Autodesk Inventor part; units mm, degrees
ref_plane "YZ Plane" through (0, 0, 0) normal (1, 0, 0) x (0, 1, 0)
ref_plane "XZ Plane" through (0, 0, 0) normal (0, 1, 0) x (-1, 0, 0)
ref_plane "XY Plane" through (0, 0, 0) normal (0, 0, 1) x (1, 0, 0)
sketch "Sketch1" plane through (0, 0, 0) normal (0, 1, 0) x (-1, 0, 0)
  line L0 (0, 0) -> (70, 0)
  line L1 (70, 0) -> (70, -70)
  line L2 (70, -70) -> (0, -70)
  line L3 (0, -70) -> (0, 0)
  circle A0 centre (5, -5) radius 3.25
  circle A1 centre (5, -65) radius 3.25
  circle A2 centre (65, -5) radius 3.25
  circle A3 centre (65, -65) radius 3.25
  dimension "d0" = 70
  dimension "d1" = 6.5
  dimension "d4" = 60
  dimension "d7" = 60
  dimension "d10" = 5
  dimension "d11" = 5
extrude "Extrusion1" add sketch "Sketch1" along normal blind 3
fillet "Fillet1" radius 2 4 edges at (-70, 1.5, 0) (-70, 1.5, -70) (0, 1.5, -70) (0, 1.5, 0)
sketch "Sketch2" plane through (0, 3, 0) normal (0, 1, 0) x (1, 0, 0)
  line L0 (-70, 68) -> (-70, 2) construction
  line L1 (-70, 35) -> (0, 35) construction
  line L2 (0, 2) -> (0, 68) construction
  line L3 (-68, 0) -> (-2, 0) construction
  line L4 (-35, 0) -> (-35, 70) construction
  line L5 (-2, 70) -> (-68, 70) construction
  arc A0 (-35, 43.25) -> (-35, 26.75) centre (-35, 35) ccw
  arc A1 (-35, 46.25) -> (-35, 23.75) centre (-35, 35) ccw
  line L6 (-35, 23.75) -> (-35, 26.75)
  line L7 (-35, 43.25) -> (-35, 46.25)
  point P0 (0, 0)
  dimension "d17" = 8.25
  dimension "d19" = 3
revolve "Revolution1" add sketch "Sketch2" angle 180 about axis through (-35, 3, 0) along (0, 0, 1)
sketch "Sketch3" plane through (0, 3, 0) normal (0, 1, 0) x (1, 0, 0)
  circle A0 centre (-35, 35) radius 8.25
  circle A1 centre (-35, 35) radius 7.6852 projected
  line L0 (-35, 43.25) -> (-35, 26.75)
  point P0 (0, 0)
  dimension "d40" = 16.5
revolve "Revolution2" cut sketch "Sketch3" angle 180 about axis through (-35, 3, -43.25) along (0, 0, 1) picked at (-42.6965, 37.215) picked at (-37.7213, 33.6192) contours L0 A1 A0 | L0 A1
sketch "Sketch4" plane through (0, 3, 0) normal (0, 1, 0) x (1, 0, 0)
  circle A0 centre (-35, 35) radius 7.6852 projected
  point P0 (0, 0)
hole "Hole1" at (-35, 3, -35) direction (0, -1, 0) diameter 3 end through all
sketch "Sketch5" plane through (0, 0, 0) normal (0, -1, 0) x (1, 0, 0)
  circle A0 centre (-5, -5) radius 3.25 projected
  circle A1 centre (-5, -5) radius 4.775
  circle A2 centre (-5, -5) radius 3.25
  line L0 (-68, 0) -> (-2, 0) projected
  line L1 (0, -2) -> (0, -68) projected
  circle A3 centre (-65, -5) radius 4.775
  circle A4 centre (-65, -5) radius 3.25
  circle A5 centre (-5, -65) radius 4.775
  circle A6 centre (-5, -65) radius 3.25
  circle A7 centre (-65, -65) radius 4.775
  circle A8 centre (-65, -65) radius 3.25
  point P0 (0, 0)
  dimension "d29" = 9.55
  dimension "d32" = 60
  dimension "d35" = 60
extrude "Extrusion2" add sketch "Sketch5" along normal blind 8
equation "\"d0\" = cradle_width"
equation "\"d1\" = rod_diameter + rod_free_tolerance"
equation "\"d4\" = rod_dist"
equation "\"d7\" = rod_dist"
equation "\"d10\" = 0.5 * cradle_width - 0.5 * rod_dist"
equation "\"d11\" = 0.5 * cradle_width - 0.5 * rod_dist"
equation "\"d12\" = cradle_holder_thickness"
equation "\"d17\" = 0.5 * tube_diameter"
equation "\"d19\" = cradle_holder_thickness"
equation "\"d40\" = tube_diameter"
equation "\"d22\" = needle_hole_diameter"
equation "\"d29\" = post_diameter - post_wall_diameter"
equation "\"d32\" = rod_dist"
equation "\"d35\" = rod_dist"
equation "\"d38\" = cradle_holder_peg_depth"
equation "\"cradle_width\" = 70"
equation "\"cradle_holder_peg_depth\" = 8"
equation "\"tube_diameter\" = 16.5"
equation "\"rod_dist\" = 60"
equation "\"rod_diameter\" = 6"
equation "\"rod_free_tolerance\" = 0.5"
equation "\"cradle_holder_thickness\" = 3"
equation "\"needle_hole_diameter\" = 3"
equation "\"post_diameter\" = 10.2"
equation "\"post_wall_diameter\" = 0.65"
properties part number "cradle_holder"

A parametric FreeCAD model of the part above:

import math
import FreeCAD as App
import Part
import Sketcher
from FreeCAD import Vector


def edges_at(feature, points):
    """Names of the edges that pass closest to the given points."""
    edges = feature.Shape.Edges
    near = lambda p: min(range(len(edges)), key=lambda i: edges[i].distToShape(Part.Vertex(*p))[0])
    return sorted({f"Edge{near(p) + 1}" for p in points})

doc = App.newDocument("Part")
body = doc.addObject("PartDesign::Body", "Body")

# Sketch on XZ plane
sketch1 = body.newObject("Sketcher::SketchObject", "Sketch")
sketch1.AttachmentSupport = (doc.getObject("XZ_Plane"), [""])
sketch1.MapMode = "FlatFace"
sketch1.addGeometry([
    Part.LineSegment(Vector(-70, 0, 0), Vector(0, 0, 0)),  # 0
    Part.LineSegment(Vector(0, 0, 0), Vector(0, -70, 0)),  # 1
    Part.LineSegment(Vector(0, -70, 0), Vector(-70, -70, 0)),  # 2
    Part.LineSegment(Vector(-70, -70, 0), Vector(-70, 0, 0)),  # 3
    Part.Circle(Vector(-5, -65, 0), Vector(0, 0, 1), 3.2),  # 4
    Part.Circle(Vector(-65, -65, 0), Vector(0, 0, 1), 3.2),  # 5
    Part.Circle(Vector(-5, -5, 0), Vector(0, 0, 1), 3.2),  # 6
    Part.Circle(Vector(-65, -5, 0), Vector(0, 0, 1), 3.2),  # 7
], False)
sketch1.addConstraint([
    Sketcher.Constraint("Coincident", 0, 2, 1, 1),
    Sketcher.Constraint("Coincident", 1, 2, 2, 1),
    Sketcher.Constraint("Coincident", 2, 2, 3, 1),
    Sketcher.Constraint("Coincident", 3, 2, 0, 1),
    Sketcher.Constraint("Horizontal", 0),
    Sketcher.Constraint("Vertical", 1),
    Sketcher.Constraint("Horizontal", 2),
    Sketcher.Constraint("Vertical", 3),
    Sketcher.Constraint("Coincident", 0, 2, -1, 1),
    Sketcher.Constraint("Equal", 4, 5),
    Sketcher.Constraint("Equal", 5, 6),
    Sketcher.Constraint("Equal", 6, 7),
    Sketcher.Constraint("Horizontal", 4, 3, 5, 3),
    Sketcher.Constraint("Horizontal", 6, 3, 7, 3),
    Sketcher.Constraint("Vertical", 4, 3, 6, 3),
    Sketcher.Constraint("Vertical", 5, 3, 7, 3),
    Sketcher.Constraint("Equal", 2, 1),
    Sketcher.Constraint("Diameter", 4, 6.5),
    Sketcher.Constraint("DistanceX", 0, 1, 0, 2, 70.0),
    Sketcher.Constraint("DistanceX", 4, 3, -1, 1, 5.0),
    Sketcher.Constraint("DistanceY", 6, 3, -1, 1, 5.0),
    Sketcher.Constraint("DistanceX", 5, 3, 4, 3, 60.0),
    Sketcher.Constraint("DistanceY", 4, 3, 6, 3, 60.0),
])
pad1 = body.newObject("PartDesign::Pad", "Pad")
pad1.Profile = sketch1
pad1.Length = 3
pad1.Reversed = True
doc.recompute()

fillet = body.newObject("PartDesign::Fillet", "Fillet")
fillet.Base = (pad1, edges_at(pad1, [
    (-70, 1.5, 0),
    (-70, 1.5, -70),
    (0, 1.5, -70),
    (0, 1.5, 0),
]))
fillet.Radius = 2

# Sketch on XZ plane
sketch2 = body.newObject("Sketcher::SketchObject", "Sketch001")
sketch2.AttachmentSupport = (doc.getObject("XZ_Plane"), [""])
sketch2.MapMode = "FlatFace"
sketch2.AttachmentOffset = App.Placement(Vector(0, 0, -3), App.Rotation())
sketch2.addGeometry([
    Part.ArcOfCircle(Part.Circle(Vector(-35, -35, 0), Vector(0, 0, 1), 8.2), math.radians(90), math.radians(270)),
    Part.LineSegment(Vector(-35, -43.2, 0), Vector(-35, -46.2, 0)),
    Part.ArcOfCircle(Part.Circle(Vector(-35, -35, 0), Vector(0, 0, 1), 11.2), math.radians(90), math.radians(270)),
    Part.LineSegment(Vector(-35, -23.8, 0), Vector(-35, -26.8, 0)),
], False)
sketch2.addGeometry(Part.LineSegment(Vector(-35, -46.2, 0), Vector(-35, -23.8, 0)), True)  # axis
sketch2.addConstraint([
    Sketcher.Constraint("Coincident", 0, 2, 1, 1),
    Sketcher.Constraint("Coincident", 1, 2, 2, 2),
    Sketcher.Constraint("Coincident", 2, 1, 3, 1),
    Sketcher.Constraint("Coincident", 3, 2, 0, 1),
    Sketcher.Constraint("Vertical", 1),
    Sketcher.Constraint("Vertical", 3),
    Sketcher.Constraint("Vertical", 4),
    Sketcher.Constraint("Coincident", 2, 3, 0, 3),
    Sketcher.Constraint("Coincident", 4, 1, 1, 2),
    Sketcher.Constraint("Coincident", 4, 2, 2, 1),
    Sketcher.Constraint("Vertical", 2, 3, 0, 2),
    Sketcher.Constraint("DistanceY", 1, 2, 1, 1, 3.0),
    Sketcher.Constraint("Radius", 0, 8.25),
    Sketcher.Constraint("DistanceX", 0, 3, -1, 1, 35.0),
    Sketcher.Constraint("DistanceY", 0, 3, -1, 1, 35.0),
])
revolution = body.newObject("PartDesign::Revolution", "Revolution")
revolution.Profile = sketch2
revolution.ReferenceAxis = (sketch2, ["Axis0"])
revolution.Angle = 180

# Sketch on XZ plane
sketch3 = body.newObject("Sketcher::SketchObject", "Sketch002")
sketch3.AttachmentSupport = (doc.getObject("XZ_Plane"), [""])
sketch3.MapMode = "FlatFace"
sketch3.AttachmentOffset = App.Placement(Vector(0, 0, -3), App.Rotation())
sketch3.addGeometry([
    Part.ArcOfCircle(Part.Circle(Vector(-35, -35, 0), Vector(0, 0, 1), 8), math.radians(90), math.radians(270)),
    Part.LineSegment(Vector(-35, -27, 0), Vector(-35, -43, 0)),
], False)
sketch3.addGeometry(Part.LineSegment(Vector(-35, -43, 0), Vector(-35, -27, 0)), True)  # axis
sketch3.addConstraint([
    Sketcher.Constraint("Coincident", 0, 1, 1, 1),
    Sketcher.Constraint("Coincident", 1, 2, 0, 2),
    Sketcher.Constraint("Vertical", 1),
    Sketcher.Constraint("Vertical", 2),
    Sketcher.Constraint("Coincident", 2, 1, 1, 2),
    Sketcher.Constraint("Equal", 1, 2),
    Sketcher.Constraint("Radius", 0, 8.25),
    Sketcher.Constraint("DistanceX", 0, 3, -1, 1, 35.0),
    Sketcher.Constraint("DistanceY", 0, 3, -1, 1, 35.0),
    Sketcher.Constraint("DistanceX", 0, 1, -1, 1, 35.0),
])
groove = body.newObject("PartDesign::Groove", "Groove")
groove.Profile = sketch3
groove.ReferenceAxis = (sketch3, ["Axis0"])
groove.Angle = 180

# Sketch on XZ plane
sketch4 = body.newObject("Sketcher::SketchObject", "Sketch003")
sketch4.AttachmentSupport = (doc.getObject("XZ_Plane"), [""])
sketch4.MapMode = "FlatFace"
sketch4.AttachmentOffset = App.Placement(Vector(0, 0, -3), App.Rotation())
sketch4.addGeometry(Part.Circle(Vector(-35, -35, 0), Vector(0, 0, 1), 1.5), False)
sketch4.addConstraint([
    Sketcher.Constraint("Diameter", 0, 3.0),
    Sketcher.Constraint("DistanceX", 0, 3, -1, 1, 35.0),
    Sketcher.Constraint("DistanceY", 0, 3, -1, 1, 35.0),
])
doc.recompute()
hole = body.newObject("PartDesign::Hole", "Hole")
hole.Profile = sketch4
hole.ThreadType = "None"
hole.Diameter = 3
hole.DepthType = "ThroughAll"
hole.Reversed = True

# Sketch on XZ plane
sketch5 = body.newObject("Sketcher::SketchObject", "Sketch004")
sketch5.AttachmentSupport = (doc.getObject("XZ_Plane"), [""])
sketch5.MapMode = "FlatFace"
sketch5.addGeometry([
    Part.Circle(Vector(-5, -5, 0), Vector(0, 0, 1), 4.8),  # 0
    Part.Circle(Vector(-5, -5, 0), Vector(0, 0, 1), 3.2),  # 1
    Part.Circle(Vector(-65, -5, 0), Vector(0, 0, 1), 4.8),  # 2
    Part.Circle(Vector(-65, -5, 0), Vector(0, 0, 1), 3.2),  # 3
    Part.Circle(Vector(-5, -65, 0), Vector(0, 0, 1), 4.8),  # 4
    Part.Circle(Vector(-5, -65, 0), Vector(0, 0, 1), 3.2),  # 5
    Part.Circle(Vector(-65, -65, 0), Vector(0, 0, 1), 4.8),  # 6
    Part.Circle(Vector(-65, -65, 0), Vector(0, 0, 1), 3.2),  # 7
], False)
sketch5.addConstraint([
    Sketcher.Constraint("Coincident", 1, 3, 0, 3),
    Sketcher.Constraint("Coincident", 3, 3, 2, 3),
    Sketcher.Constraint("Coincident", 5, 3, 4, 3),
    Sketcher.Constraint("Coincident", 7, 3, 6, 3),
    Sketcher.Constraint("Equal", 0, 2),
    Sketcher.Constraint("Equal", 1, 3),
    Sketcher.Constraint("Equal", 2, 4),
    Sketcher.Constraint("Equal", 3, 5),
    Sketcher.Constraint("Equal", 4, 6),
    Sketcher.Constraint("Equal", 5, 7),
    Sketcher.Constraint("Horizontal", 1, 3, 2, 3),
    Sketcher.Constraint("Horizontal", 5, 3, 6, 3),
    Sketcher.Constraint("Vertical", 1, 3, 4, 3),
    Sketcher.Constraint("Vertical", 3, 3, 6, 3),
    Sketcher.Constraint("Diameter", 0, 9.55),
    Sketcher.Constraint("DistanceX", 2, 3, 0, 3, 60.0),
    Sketcher.Constraint("DistanceY", 4, 3, 0, 3, 60.0),
    Sketcher.Constraint("Diameter", 1, 6.5),
    Sketcher.Constraint("DistanceX", 0, 3, -1, 1, 5.0),
    Sketcher.Constraint("DistanceY", 0, 3, -1, 1, 5.0),
])
pad2 = body.newObject("PartDesign::Pad", "Pad001")
pad2.Profile = sketch5
pad2.Length = 8

doc.recompute()
